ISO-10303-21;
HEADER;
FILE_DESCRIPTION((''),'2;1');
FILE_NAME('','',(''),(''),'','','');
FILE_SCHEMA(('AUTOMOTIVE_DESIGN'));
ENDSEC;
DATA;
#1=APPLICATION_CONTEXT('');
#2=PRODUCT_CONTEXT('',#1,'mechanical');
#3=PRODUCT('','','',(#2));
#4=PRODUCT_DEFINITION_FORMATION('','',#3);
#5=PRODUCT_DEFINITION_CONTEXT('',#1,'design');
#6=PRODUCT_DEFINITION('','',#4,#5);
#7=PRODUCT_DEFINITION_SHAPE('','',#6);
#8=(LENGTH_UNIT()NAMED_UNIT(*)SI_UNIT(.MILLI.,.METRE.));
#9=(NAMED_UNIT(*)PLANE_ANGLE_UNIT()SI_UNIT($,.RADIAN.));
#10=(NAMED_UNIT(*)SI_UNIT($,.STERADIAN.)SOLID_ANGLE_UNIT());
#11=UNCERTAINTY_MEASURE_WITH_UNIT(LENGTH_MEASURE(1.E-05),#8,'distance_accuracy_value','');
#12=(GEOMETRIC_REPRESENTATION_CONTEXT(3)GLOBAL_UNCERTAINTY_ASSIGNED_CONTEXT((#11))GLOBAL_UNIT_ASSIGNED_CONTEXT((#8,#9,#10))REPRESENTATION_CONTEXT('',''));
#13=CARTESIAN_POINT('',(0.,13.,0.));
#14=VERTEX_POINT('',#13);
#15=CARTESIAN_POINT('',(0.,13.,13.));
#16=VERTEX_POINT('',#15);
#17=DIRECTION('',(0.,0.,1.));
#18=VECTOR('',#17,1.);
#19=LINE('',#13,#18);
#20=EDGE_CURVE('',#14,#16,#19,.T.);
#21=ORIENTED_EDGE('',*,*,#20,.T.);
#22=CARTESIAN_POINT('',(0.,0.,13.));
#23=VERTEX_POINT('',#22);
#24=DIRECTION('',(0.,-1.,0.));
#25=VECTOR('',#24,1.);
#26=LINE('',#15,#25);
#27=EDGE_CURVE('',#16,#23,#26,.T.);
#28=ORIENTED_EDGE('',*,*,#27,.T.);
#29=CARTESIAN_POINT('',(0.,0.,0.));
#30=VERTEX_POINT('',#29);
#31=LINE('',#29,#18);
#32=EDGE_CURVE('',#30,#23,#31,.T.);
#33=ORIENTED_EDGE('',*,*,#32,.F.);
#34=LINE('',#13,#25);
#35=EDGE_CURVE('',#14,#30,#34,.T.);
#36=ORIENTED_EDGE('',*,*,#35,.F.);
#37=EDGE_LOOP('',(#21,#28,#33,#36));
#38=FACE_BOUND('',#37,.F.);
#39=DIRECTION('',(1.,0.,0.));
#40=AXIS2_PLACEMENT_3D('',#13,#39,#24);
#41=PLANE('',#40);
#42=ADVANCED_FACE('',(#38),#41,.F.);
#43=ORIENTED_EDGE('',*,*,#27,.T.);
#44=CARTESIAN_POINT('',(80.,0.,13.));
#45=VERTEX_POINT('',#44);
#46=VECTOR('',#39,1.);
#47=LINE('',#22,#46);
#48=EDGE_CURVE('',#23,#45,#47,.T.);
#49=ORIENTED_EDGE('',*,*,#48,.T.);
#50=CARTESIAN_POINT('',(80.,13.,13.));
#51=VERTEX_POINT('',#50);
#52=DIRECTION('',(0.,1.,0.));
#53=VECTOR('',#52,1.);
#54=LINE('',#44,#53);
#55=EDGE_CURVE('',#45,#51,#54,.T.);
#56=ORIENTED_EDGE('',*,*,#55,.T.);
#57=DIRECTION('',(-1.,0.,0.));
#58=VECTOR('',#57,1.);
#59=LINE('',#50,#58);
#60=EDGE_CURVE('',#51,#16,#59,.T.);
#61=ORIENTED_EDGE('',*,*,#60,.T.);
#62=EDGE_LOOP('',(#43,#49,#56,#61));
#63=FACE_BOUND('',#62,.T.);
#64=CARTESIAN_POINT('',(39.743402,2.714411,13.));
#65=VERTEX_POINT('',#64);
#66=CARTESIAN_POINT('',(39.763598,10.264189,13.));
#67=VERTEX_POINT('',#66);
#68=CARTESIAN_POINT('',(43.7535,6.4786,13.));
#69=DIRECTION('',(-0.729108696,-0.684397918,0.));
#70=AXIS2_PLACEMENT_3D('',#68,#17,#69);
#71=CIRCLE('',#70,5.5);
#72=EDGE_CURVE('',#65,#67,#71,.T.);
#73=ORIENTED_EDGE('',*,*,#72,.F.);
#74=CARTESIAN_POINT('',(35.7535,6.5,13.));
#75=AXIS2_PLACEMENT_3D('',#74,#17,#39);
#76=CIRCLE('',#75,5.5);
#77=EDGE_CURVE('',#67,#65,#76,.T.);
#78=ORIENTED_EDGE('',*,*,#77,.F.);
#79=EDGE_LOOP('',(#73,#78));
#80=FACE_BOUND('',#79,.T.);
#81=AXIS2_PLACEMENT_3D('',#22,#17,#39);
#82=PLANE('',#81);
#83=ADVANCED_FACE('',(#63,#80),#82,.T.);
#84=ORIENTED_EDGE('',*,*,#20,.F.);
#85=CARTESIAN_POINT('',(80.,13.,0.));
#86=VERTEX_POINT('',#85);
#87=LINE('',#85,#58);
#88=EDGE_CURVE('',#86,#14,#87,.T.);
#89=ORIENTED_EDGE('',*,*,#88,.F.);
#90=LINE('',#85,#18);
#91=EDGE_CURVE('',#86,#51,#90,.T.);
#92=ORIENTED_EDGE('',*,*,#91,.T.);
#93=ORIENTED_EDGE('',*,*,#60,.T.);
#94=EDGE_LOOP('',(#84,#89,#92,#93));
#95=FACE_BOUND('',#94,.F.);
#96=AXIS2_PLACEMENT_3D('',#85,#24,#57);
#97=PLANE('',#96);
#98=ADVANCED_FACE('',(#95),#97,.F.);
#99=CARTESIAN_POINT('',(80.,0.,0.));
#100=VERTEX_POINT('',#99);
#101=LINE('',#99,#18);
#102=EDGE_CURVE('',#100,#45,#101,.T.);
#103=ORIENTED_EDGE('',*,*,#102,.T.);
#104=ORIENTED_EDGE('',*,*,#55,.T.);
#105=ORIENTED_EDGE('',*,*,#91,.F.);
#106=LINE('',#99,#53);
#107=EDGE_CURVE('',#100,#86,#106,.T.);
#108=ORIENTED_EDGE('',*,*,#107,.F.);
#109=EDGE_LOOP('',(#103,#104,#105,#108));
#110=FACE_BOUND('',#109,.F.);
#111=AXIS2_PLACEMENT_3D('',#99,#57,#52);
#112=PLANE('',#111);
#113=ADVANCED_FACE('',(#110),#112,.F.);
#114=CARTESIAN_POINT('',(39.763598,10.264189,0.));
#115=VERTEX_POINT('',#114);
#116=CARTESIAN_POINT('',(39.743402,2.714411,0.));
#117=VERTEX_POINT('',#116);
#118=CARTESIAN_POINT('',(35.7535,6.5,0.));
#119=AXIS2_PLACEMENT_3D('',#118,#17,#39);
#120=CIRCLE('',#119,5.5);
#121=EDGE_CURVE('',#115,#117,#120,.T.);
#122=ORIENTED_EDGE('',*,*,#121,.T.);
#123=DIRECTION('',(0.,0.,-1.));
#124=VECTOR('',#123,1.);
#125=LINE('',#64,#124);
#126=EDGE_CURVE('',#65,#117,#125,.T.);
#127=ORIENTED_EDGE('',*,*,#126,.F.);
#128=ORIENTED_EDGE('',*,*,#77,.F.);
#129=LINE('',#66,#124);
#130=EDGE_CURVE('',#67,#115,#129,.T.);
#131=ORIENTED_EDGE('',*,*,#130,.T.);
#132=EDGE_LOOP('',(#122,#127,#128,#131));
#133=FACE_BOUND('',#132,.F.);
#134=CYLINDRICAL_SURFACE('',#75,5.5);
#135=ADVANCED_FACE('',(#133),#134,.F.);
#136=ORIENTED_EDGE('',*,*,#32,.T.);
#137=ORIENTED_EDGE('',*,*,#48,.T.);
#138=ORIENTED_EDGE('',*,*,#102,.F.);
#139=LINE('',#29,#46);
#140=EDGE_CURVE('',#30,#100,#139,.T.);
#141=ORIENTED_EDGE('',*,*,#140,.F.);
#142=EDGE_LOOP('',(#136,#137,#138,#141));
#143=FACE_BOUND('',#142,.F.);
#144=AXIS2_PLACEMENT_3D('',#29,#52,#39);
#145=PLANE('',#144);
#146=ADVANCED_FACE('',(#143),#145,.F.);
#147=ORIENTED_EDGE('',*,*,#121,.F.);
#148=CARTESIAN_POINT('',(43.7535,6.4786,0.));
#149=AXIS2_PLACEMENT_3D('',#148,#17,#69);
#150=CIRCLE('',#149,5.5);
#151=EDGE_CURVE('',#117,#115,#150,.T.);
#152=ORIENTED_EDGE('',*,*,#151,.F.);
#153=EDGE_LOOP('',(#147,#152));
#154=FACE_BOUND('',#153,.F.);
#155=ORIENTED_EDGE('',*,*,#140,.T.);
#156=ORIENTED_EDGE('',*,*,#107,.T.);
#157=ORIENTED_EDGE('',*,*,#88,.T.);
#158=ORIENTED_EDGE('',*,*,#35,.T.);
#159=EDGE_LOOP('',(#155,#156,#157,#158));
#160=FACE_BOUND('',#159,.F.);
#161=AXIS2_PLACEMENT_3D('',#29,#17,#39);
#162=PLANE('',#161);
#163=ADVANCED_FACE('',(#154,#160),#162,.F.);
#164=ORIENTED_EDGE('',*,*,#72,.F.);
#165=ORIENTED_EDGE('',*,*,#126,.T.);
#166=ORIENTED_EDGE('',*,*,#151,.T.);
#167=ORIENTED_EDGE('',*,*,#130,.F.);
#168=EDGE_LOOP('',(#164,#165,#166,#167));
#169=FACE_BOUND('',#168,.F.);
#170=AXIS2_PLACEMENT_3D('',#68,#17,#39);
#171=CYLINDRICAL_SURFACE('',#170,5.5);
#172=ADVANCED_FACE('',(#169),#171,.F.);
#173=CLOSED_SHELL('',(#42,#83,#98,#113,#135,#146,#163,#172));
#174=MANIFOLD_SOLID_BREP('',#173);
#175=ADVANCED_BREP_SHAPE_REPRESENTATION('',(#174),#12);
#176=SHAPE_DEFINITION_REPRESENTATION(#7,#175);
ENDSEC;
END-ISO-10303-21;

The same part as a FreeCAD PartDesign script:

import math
import FreeCAD as App
import Part
import Sketcher
from FreeCAD import Vector


def add_polygon(sketch, points):
    """Adds a closed chain of lines whose ends are joined by coincident constraints."""
    first, n = sketch.GeometryCount, len(points)
    for a, b in zip(points, points[1:] + points[:1]):
        sketch.addGeometry(Part.LineSegment(App.Vector(*a, 0), App.Vector(*b, 0)), False)
    for i in range(n):
        sketch.addConstraint(Sketcher.Constraint("Coincident", first + i, 2, first + (i + 1) % n, 1))

doc = App.newDocument("Part")
body = doc.addObject("PartDesign::Body", "Body")

sketch1 = body.newObject("Sketcher::SketchObject", "Sketch")
sketch1.AttachmentSupport = (doc.getObject("XY_Plane"), [""])
sketch1.MapMode = "FlatFace"
add_polygon(sketch1, [(0, 13), (0, 0), (80, 0), (80, 13)])
sketch1.addConstraint([
    Sketcher.Constraint("Vertical", 0),
    Sketcher.Constraint("Horizontal", 1),
    Sketcher.Constraint("Vertical", 2),
    Sketcher.Constraint("Horizontal", 3),
    Sketcher.Constraint("Coincident", 0, 2, -1, 1),
    Sketcher.Constraint("DistanceX", 1, 1, 1, 2, 80.0),
    Sketcher.Constraint("DistanceY", 0, 2, 0, 1, 13.0),
])
pad1 = body.newObject("PartDesign::Pad", "Pad")
pad1.Profile = sketch1
pad1.Length = 13

sketch2 = body.newObject("Sketcher::SketchObject", "Sketch001")
sketch2.AttachmentSupport = (doc.getObject("XY_Plane"), [""])
sketch2.MapMode = "FlatFace"
sketch2.AttachmentOffset = App.Placement(Vector(0, 0, 13), App.Rotation())
sketch2.addGeometry([
    Part.ArcOfCircle(Part.Circle(Vector(43.7535, 6.4786, 0), Vector(0, 0, 1), 5.5), math.radians(-136.811725), math.radians(136.505193)),
    Part.ArcOfCircle(Part.Circle(Vector(35.7535, 6.5, 0), Vector(0, 0, 1), 5.5), math.radians(43.188275), math.radians(316.505193)),
], False)
sketch2.addConstraint([
    Sketcher.Constraint("Coincident", 0, 1, 1, 2),
    Sketcher.Constraint("Coincident", 1, 1, 0, 2),
    Sketcher.Constraint("Equal", 0, 1),
    Sketcher.Constraint("DistanceX", 1, 3, 0, 3, 8.0),
    Sketcher.Constraint("DistanceY", -1, 1, 1, 3, 6.5),
    Sketcher.Constraint("Radius", 0, 5.5),
    Sketcher.Constraint("DistanceX", 1, 3, 0, 1, 3.99),
    Sketcher.Constraint("DistanceX", -1, 1, 0, 3, 43.7535),
])
pocket1 = body.newObject("PartDesign::Pocket", "Pocket")
pocket1.Profile = sketch2
pocket1.Length = 13

doc.recompute()
